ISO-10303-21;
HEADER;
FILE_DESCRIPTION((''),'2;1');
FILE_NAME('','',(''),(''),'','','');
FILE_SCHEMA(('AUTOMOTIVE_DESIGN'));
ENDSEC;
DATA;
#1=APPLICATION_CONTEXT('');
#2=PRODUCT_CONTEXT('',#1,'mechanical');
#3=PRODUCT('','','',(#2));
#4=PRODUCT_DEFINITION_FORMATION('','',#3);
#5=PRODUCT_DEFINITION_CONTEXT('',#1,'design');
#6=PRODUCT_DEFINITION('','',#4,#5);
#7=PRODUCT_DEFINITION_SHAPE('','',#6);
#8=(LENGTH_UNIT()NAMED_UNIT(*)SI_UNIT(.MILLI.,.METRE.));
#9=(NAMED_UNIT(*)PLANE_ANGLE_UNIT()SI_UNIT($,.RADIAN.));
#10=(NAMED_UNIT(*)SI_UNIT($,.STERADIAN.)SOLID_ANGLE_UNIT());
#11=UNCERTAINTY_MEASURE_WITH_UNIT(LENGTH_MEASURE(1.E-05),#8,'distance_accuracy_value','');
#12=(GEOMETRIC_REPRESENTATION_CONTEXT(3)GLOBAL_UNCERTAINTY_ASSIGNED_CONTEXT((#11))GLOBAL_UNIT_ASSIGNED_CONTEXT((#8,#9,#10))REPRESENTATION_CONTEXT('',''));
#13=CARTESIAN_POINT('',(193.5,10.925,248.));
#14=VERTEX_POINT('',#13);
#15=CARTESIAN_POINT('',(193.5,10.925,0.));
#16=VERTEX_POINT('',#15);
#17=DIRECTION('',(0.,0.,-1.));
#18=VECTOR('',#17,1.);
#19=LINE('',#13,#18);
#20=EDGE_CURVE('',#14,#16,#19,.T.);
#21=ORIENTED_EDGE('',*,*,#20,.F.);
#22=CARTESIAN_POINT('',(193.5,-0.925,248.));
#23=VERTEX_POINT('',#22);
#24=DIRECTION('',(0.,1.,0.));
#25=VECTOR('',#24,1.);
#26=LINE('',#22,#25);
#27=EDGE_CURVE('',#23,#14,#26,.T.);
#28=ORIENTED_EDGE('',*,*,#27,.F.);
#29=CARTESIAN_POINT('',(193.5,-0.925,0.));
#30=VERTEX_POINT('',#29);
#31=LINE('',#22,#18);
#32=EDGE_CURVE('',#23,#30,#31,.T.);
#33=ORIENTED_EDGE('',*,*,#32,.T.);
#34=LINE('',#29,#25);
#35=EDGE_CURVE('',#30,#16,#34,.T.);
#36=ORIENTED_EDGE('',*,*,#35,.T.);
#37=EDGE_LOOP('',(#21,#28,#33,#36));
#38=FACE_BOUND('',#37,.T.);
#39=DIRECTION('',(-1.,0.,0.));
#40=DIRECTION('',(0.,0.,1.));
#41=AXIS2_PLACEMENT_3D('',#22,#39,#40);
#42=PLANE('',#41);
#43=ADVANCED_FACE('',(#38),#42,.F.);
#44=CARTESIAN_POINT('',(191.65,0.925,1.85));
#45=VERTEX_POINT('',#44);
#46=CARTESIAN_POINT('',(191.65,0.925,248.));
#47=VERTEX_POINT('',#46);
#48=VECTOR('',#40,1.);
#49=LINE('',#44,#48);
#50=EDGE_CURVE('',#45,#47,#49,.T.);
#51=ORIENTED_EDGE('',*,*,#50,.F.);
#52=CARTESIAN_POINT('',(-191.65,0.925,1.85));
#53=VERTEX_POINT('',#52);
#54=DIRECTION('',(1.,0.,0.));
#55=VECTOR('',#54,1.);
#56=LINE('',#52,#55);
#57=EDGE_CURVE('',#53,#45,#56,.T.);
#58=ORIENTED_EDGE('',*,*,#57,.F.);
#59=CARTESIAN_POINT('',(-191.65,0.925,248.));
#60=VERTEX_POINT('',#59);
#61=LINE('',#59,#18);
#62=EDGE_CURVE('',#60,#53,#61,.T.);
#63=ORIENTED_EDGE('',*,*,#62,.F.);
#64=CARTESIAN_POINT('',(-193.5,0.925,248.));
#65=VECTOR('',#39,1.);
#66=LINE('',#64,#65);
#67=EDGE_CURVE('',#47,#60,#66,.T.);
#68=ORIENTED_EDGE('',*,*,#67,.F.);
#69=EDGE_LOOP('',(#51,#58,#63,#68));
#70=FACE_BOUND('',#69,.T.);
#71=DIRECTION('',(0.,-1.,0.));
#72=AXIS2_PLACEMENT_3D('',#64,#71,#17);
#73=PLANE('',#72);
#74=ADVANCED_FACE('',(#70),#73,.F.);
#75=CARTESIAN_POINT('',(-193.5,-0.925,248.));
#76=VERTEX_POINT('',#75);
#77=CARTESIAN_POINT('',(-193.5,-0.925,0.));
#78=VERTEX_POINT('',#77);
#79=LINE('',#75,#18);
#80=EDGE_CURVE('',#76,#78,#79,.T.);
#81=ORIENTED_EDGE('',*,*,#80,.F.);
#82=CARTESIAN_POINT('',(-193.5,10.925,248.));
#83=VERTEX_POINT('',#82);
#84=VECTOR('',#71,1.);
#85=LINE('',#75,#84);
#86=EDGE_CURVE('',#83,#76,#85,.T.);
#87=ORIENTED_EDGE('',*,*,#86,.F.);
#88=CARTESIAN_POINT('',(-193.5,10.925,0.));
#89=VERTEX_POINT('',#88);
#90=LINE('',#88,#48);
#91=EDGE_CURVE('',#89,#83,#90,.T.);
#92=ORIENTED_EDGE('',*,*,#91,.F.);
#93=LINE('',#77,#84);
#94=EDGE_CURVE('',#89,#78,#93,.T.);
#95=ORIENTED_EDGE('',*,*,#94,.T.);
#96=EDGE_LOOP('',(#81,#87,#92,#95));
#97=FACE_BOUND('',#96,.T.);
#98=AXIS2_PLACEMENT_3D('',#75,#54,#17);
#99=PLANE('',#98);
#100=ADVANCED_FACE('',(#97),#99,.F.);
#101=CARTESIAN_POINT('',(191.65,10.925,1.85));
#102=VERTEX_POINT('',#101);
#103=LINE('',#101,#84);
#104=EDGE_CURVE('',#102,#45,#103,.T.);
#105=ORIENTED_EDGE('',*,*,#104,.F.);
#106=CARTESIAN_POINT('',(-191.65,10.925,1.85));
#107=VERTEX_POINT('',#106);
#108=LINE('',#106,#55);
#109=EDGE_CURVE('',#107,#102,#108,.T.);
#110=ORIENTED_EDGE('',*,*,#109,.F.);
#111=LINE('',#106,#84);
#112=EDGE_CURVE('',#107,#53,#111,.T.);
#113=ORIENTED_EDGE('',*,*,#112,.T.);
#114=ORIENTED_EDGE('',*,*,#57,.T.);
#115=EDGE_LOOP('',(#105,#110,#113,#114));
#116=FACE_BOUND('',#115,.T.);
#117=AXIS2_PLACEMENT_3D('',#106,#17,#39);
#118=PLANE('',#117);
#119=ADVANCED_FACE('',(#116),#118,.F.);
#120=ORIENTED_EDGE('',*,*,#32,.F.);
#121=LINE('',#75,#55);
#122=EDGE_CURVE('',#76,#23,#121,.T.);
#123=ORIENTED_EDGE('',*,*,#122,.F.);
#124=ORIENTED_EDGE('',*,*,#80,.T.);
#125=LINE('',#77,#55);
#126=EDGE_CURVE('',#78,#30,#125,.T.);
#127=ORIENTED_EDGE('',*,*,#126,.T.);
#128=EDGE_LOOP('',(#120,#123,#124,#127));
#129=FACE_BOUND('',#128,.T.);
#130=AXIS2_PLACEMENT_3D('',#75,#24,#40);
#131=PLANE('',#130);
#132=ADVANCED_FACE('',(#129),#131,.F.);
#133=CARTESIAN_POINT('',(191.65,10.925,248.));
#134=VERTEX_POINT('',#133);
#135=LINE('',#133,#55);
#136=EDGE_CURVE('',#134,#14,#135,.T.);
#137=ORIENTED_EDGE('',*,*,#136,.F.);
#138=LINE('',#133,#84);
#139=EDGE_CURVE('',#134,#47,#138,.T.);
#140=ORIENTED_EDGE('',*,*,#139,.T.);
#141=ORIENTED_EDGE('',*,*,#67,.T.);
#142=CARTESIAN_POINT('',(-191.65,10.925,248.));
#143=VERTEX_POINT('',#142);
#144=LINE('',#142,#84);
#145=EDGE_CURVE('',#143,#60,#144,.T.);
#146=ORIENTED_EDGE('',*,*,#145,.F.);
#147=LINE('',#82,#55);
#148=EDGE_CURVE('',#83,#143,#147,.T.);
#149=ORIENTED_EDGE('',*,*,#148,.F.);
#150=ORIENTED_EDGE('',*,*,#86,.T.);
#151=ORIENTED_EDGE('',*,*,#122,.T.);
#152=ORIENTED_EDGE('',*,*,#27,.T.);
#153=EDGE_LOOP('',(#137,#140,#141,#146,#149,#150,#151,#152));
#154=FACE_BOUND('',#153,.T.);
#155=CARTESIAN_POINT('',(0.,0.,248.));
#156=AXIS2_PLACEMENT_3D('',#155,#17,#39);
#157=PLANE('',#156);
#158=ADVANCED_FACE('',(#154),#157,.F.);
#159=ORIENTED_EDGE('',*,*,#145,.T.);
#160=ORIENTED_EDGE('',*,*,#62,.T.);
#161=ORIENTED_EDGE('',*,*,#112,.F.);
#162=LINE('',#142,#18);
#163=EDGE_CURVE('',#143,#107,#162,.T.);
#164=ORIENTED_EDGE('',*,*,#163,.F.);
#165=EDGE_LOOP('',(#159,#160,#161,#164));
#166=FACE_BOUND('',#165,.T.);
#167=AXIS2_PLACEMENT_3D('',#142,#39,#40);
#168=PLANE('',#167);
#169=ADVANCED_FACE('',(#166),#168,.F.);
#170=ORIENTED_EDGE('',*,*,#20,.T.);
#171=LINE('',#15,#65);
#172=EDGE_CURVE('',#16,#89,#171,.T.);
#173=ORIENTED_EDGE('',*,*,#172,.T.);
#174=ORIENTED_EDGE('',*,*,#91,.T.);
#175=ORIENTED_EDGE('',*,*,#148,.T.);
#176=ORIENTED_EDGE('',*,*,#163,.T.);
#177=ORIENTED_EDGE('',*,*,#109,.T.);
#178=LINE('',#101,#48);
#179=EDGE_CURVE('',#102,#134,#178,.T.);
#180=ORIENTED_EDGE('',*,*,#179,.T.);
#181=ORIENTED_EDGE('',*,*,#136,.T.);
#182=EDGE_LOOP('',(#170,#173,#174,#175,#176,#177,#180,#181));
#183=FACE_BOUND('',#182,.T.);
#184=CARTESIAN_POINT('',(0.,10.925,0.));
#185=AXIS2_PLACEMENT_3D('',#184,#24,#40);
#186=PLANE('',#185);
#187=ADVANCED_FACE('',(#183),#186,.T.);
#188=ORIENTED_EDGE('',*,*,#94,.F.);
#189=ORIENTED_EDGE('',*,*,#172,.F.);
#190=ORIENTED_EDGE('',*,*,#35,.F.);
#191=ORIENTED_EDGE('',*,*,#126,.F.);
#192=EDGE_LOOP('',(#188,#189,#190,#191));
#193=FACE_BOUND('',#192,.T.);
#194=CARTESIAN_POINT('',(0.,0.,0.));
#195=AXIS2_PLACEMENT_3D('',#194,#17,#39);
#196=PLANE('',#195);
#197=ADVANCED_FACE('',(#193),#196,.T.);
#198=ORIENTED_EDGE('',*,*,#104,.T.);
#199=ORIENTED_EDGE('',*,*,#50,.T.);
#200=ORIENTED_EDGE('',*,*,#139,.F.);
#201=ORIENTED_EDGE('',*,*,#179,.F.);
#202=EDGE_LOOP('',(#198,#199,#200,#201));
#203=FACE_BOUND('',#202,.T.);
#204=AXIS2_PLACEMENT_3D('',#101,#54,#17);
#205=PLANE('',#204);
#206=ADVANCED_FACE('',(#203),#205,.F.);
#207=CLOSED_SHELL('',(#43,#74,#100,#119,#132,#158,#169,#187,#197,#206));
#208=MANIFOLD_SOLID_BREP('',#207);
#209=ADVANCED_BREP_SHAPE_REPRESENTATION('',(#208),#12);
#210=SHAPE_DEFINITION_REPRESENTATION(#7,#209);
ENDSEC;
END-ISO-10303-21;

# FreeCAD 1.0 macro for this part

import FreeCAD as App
import Part
import Sketcher

V = App.Vector
Q = App.Units.Quantity


def add_polygon(sketch, points):
    """Adds a closed chain of lines whose ends are joined by coincident constraints."""
    first, n = sketch.GeometryCount, len(points)
    for a, b in zip(points, points[1:] + points[:1]):
        sketch.addGeometry(Part.LineSegment(App.Vector(*a, 0), App.Vector(*b, 0)), False)
    for i in range(n):
        sketch.addConstraint(Sketcher.Constraint("Coincident", first + i, 2, first + (i + 1) % n, 1))

doc = App.newDocument("Part")
body = doc.addObject("PartDesign::Body", "Body")

# Sketch on XY plane
sketch1 = body.newObject("Sketcher::SketchObject", "Sketch")
sketch1.AttachmentSupport = (doc.getObject("XY_Plane"), [""])
sketch1.MapMode = "FlatFace"
add_polygon(sketch1, [(-193.5, 0.925), (-193.5, -0.925), (193.5, -0.925), (193.5, 0.925)])  # lines 0-3
sketch1.addConstraint([
    Sketcher.Constraint("Vertical", 0),
    Sketcher.Constraint("Horizontal", 1),
    Sketcher.Constraint("Vertical", 2),
    Sketcher.Constraint("Horizontal", 3),
    Sketcher.Constraint("Symmetric", 0, 2, 2, 2, -1, 1),
    Sketcher.Constraint("DistanceX", 1, 1, 1, 2, Q("387 mm")),
    Sketcher.Constraint("DistanceY", 0, 2, 0, 1, Q("1.85 mm")),
])
pad1 = body.newObject("PartDesign::Pad", "Pad")
pad1.Profile = sketch1
pad1.Length = 248

# Sketch on XZ plane
sketch2 = body.newObject("Sketcher::SketchObject", "Sketch001")
sketch2.AttachmentSupport = (doc.getObject("XZ_Plane"), [""])
sketch2.MapMode = "FlatFace"
sketch2.AttachmentOffset = App.Placement(V(0, 0, -0.925), App.Rotation())
add_polygon(sketch2, [(193.5, 248), (193.5, 0), (-193.5, 0), (-193.5, 248), (-191.65, 248), (-191.65, 1.85), (191.65, 1.85), (191.65, 248)])  # lines 0-7
sketch2.addConstraint([
    Sketcher.Constraint("Vertical", 0),
    Sketcher.Constraint("Horizontal", 1),
    Sketcher.Constraint("Vertical", 2),
    Sketcher.Constraint("Horizontal", 3),
    Sketcher.Constraint("Vertical", 4),
    Sketcher.Constraint("Horizontal", 5),
    Sketcher.Constraint("Vertical", 6),
    Sketcher.Constraint("Horizontal", 7),
    Sketcher.Constraint("Symmetric", 0, 2, 1, 2, -1, 1),
    Sketcher.Constraint("Symmetric", 3, 2, 6, 2, -2),
    Sketcher.Constraint("DistanceX", 1, 2, 1, 1, Q("387 mm")),
    Sketcher.Constraint("DistanceY", 0, 2, 0, 1, Q("248 mm")),
    Sketcher.Constraint("DistanceX", 5, 1, 5, 2, Q("383.3 mm")),
    Sketcher.Constraint("DistanceY", 4, 2, 4, 1, Q("246.15 mm")),
])
pad2 = body.newObject("PartDesign::Pad", "Pad001")
pad2.Profile = sketch2
pad2.Length = 10
pad2.Reversed = True

doc.recompute()
